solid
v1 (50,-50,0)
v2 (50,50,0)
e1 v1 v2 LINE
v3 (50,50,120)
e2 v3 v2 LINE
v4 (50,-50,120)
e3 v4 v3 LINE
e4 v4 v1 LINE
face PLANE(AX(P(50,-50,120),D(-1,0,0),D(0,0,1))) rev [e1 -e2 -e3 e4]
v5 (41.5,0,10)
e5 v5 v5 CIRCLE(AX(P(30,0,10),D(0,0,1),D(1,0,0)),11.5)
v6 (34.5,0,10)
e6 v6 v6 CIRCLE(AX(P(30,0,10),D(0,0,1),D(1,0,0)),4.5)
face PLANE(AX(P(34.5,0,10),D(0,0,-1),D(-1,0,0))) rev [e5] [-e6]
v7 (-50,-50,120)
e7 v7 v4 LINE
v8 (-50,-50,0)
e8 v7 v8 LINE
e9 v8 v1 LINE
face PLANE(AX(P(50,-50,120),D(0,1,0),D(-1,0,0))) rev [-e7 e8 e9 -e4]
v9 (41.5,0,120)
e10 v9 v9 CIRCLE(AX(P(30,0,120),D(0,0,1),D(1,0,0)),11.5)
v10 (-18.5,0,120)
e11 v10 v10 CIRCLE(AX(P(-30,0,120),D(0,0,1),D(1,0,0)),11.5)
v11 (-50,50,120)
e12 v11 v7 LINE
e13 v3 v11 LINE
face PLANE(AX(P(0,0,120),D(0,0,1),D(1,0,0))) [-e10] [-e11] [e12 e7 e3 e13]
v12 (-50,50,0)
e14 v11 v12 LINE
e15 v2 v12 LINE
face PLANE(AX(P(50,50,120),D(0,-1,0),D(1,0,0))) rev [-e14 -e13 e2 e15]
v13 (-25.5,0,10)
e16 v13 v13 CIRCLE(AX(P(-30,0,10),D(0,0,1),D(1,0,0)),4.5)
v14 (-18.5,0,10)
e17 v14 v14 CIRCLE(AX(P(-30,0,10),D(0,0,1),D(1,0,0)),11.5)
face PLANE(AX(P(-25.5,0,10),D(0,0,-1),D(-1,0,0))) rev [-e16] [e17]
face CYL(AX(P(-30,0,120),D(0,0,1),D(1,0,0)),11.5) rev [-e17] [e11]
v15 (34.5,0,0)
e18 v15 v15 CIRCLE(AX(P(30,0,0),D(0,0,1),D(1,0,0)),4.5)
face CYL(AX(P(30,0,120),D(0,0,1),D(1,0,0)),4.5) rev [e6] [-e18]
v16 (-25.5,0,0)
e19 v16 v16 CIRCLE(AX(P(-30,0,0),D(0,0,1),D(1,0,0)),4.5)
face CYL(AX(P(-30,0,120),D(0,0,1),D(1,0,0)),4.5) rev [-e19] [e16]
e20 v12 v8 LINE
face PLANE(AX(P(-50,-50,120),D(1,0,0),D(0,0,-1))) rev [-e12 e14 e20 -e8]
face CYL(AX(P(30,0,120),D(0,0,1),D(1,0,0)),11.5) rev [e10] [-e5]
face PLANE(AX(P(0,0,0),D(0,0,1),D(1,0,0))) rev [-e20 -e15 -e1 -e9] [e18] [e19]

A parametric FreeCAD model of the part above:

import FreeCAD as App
import Part
import Sketcher
Q = App.Units.Quantity


def add_polygon(sketch, points):
    """Adds a closed chain of lines whose ends are joined by coincident constraints."""
    first, n = sketch.GeometryCount, len(points)
    for a, b in zip(points, points[1:] + points[:1]):
        sketch.addGeometry(Part.LineSegment(App.Vector(*a, 0), App.Vector(*b, 0)), False)
    for i in range(n):
        sketch.addConstraint(Sketcher.Constraint("Coincident", first + i, 2, first + (i + 1) % n, 1))

doc = App.newDocument("Part")
body = doc.addObject("PartDesign::Body", "Body")

sketch1 = body.newObject("Sketcher::SketchObject", "Sketch")
sketch1.AttachmentSupport = (doc.getObject("XY_Plane"), [""])
sketch1.MapMode = "FlatFace"
add_polygon(sketch1, [(-50, 50), (-50, -50), (50, -50), (50, 50)])
sketch1.addConstraint([
    Sketcher.Constraint("Vertical", 0),
    Sketcher.Constraint("Horizontal", 1),
    Sketcher.Constraint("Vertical", 2),
    Sketcher.Constraint("Horizontal", 3),
    Sketcher.Constraint("Symmetric", 0, 2, 2, 2, -1, 1),
    Sketcher.Constraint("Equal", 3, 0),
    Sketcher.Constraint("DistanceX", 1, 1, 1, 2, Q("100 mm")),
])
pad1 = body.newObject("PartDesign::Pad", "Pad")
pad1.Profile = sketch1
pad1.Length = 120

sketch2 = body.newObject("Sketcher::SketchObject", "Sketch001")
sketch2.AttachmentSupport = (doc.getObject("XY_Plane"), [""])
sketch2.MapMode = "FlatFace"
sketch2.AttachmentOffset = App.Placement(App.Vector(0, 0, 120), App.Rotation())
sketch2.addGeometry(Part.Circle(App.Vector(-30, 0, 0), App.Vector(0, 0, 1), 4.5), False)
sketch2.addConstraint([
    Sketcher.Constraint("PointOnObject", 0, 3, -1),
    Sketcher.Constraint("Diameter", 0, Q("9 mm")),
    Sketcher.Constraint("DistanceX", 0, 3, -1, 1, Q("30 mm")),
])
doc.recompute()
hole = body.newObject("PartDesign::Hole", "Hole")
hole.Profile = sketch2
hole.ThreadType = "None"
hole.Diameter = 9
hole.DepthType = "ThroughAll"
hole.HoleCutType = "Counterbore"
hole.HoleCutDiameter = 23
hole.HoleCutDepth = 110
doc.recompute()

mirrored = body.newObject("PartDesign::Mirrored", "Mirrored")
mirrored.Originals = [hole]
mirrored.MirrorPlane = (doc.getObject("YZ_Plane"), [""])
body.Tip = mirrored

doc.recompute()
